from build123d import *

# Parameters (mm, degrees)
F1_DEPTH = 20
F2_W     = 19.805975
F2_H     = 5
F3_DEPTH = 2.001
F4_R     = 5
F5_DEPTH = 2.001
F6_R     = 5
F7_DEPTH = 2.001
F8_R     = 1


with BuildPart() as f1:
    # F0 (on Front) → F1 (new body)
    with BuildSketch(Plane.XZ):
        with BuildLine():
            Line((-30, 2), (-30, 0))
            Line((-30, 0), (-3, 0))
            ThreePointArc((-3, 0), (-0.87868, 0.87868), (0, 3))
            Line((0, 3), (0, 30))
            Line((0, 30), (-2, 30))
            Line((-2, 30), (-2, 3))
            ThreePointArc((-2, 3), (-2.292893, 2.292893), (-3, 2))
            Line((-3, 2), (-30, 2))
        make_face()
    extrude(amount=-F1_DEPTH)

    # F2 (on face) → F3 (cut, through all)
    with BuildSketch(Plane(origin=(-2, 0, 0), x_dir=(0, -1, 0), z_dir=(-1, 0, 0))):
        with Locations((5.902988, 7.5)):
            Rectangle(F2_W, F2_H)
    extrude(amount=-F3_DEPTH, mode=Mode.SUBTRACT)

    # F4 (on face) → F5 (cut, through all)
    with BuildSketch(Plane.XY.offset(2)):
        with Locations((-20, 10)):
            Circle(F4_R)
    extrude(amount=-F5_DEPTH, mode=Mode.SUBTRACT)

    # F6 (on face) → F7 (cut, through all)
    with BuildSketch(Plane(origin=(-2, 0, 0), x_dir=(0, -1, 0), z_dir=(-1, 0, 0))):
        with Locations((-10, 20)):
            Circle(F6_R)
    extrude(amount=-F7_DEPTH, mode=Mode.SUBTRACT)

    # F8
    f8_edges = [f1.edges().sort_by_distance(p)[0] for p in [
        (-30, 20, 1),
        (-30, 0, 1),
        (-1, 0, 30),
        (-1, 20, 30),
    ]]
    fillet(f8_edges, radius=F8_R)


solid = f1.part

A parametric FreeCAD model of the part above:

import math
import FreeCAD as App
import Part
import Sketcher
from FreeCAD import Vector


def edges_at(feature, points):
    """Names of the edges that pass closest to the given points."""
    edges = feature.Shape.Edges
    near = lambda p: min(range(len(edges)), key=lambda i: edges[i].distToShape(Part.Vertex(*p))[0])
    return sorted({f"Edge{near(p) + 1}" for p in points})


def add_polygon(sketch, points):
    """Adds a closed chain of lines whose ends are joined by coincident constraints."""
    first, n = sketch.GeometryCount, len(points)
    for a, b in zip(points, points[1:] + points[:1]):
        sketch.addGeometry(Part.LineSegment(App.Vector(*a, 0), App.Vector(*b, 0)), False)
    for i in range(n):
        sketch.addConstraint(Sketcher.Constraint("Coincident", first + i, 2, first + (i + 1) % n, 1))

doc = App.newDocument("Part")
body = doc.addObject("PartDesign::Body", "Body")

sketch1 = body.newObject("Sketcher::SketchObject", "Sketch")
sketch1.AttachmentSupport = (doc.getObject("XZ_Plane"), [""])
sketch1.MapMode = "FlatFace"
sketch1.addGeometry([
    Part.LineSegment(Vector(-30, 2, 0), Vector(-30, 0, 0)),
    Part.LineSegment(Vector(-30, 0, 0), Vector(-3, 0, 0)),
    Part.ArcOfCircle(Part.Circle(Vector(-3, 3, 0), Vector(0, 0, 1), 3), math.radians(-90), math.radians(0)),
    Part.LineSegment(Vector(0, 3, 0), Vector(0, 30, 0)),
    Part.LineSegment(Vector(0, 30, 0), Vector(-2, 30, 0)),
    Part.LineSegment(Vector(-2, 30, 0), Vector(-2, 3, 0)),
    Part.ArcOfCircle(Part.Circle(Vector(-3, 3, 0), Vector(0, 0, 1), 1), math.radians(-90), math.radians(0)),
    Part.LineSegment(Vector(-3, 2, 0), Vector(-30, 2, 0)),
], False)
sketch1.addConstraint([
    Sketcher.Constraint("Coincident", 0, 2, 1, 1),
    Sketcher.Constraint("Tangent", 1, 2, 2, 1),
    Sketcher.Constraint("Tangent", 2, 2, 3, 1),
    Sketcher.Constraint("Coincident", 3, 2, 4, 1),
    Sketcher.Constraint("Coincident", 4, 2, 5, 1),
    Sketcher.Constraint("Tangent", 5, 2, 6, 2),
    Sketcher.Constraint("Tangent", 6, 1, 7, 1),
    Sketcher.Constraint("Coincident", 7, 2, 0, 1),
    Sketcher.Constraint("Vertical", 0),
    Sketcher.Constraint("Horizontal", 1),
    Sketcher.Constraint("Vertical", 3),
    Sketcher.Constraint("Horizontal", 4),
    Sketcher.Constraint("Vertical", 5),
    Sketcher.Constraint("Horizontal", 7),
    Sketcher.Constraint("Coincident", 6, 3, 2, 3),
    Sketcher.Constraint("PointOnObject", 0, 2, -1),
    Sketcher.Constraint("PointOnObject", 2, 2, -2),
    Sketcher.Constraint("Equal", 7, 3),
    Sketcher.Constraint("Radius", 2, 3.000001),
    Sketcher.Constraint("Radius", 6, 0.999999),
    Sketcher.Constraint("DistanceX", 1, 1, 1, 2, 27.0),
])
pad1 = body.newObject("PartDesign::Pad", "Pad")
pad1.Profile = sketch1
pad1.Length = 20
pad1.Reversed = True

sketch2 = body.newObject("Sketcher::SketchObject", "Sketch001")
sketch2.AttachmentSupport = (doc.getObject("YZ_Plane"), [""])
sketch2.MapMode = "FlatFace"
sketch2.AttachmentOffset = App.Placement(Vector(0, 0, -2), App.Rotation())
add_polygon(sketch2, [(4, 10), (4, 5), (-16, 5), (-16, 10)])
sketch2.addConstraint([
    Sketcher.Constraint("Vertical", 0),
    Sketcher.Constraint("Horizontal", 1),
    Sketcher.Constraint("Vertical", 2),
    Sketcher.Constraint("Horizontal", 3),
    Sketcher.Constraint("DistanceY", 0, 2, 0, 1, 5.0),
    Sketcher.Constraint("DistanceX", -1, 1, 0, 2, 3.999999),
    Sketcher.Constraint("DistanceY", -1, 1, 0, 2, 5.0),
    Sketcher.Constraint("DistanceX", 1, 2, 1, 1, 19.805975),
])
pocket1 = body.newObject("PartDesign::Pocket", "Pocket")
pocket1.Profile = sketch2
pocket1.Type = "ThroughAll"
pocket1.Reversed = True

sketch3 = body.newObject("Sketcher::SketchObject", "Sketch002")
sketch3.AttachmentSupport = (doc.getObject("XY_Plane"), [""])
sketch3.MapMode = "FlatFace"
sketch3.AttachmentOffset = App.Placement(Vector(0, 0, 2), App.Rotation())
sketch3.addGeometry(Part.Circle(Vector(-20, 10, 0), Vector(0, 0, 1), 5), False)
sketch3.addConstraint([
    Sketcher.Constraint("Diameter", 0, 10.0),
    Sketcher.Constraint("DistanceX", 0, 3, -1, 1, 20.0),
    Sketcher.Constraint("DistanceY", -1, 1, 0, 3, 10.0),
])
pocket2 = body.newObject("PartDesign::Pocket", "Pocket001")
pocket2.Profile = sketch3
pocket2.Type = "ThroughAll"

sketch4 = body.newObject("Sketcher::SketchObject", "Sketch003")
sketch4.AttachmentSupport = (doc.getObject("YZ_Plane"), [""])
sketch4.MapMode = "FlatFace"
sketch4.AttachmentOffset = App.Placement(Vector(0, 0, -2), App.Rotation())
sketch4.addGeometry(Part.Circle(Vector(10, 20, 0), Vector(0, 0, 1), 5), False)
sketch4.addConstraint([
    Sketcher.Constraint("Diameter", 0, 10.0),
    Sketcher.Constraint("DistanceX", -1, 1, 0, 3, 10.0),
    Sketcher.Constraint("DistanceY", -1, 1, 0, 3, 20.0),
])
pocket3 = body.newObject("PartDesign::Pocket", "Pocket002")
pocket3.Profile = sketch4
pocket3.Type = "ThroughAll"
pocket3.Reversed = True
doc.recompute()

fillet = body.newObject("PartDesign::Fillet", "Fillet")
fillet.Base = (pocket3, edges_at(pocket3, [
    (-30, 20, 1),
    (-30, 0, 1),
    (-1, 0, 30),
    (-1, 20, 30),
]))
fillet.Radius = 1

doc.recompute()
